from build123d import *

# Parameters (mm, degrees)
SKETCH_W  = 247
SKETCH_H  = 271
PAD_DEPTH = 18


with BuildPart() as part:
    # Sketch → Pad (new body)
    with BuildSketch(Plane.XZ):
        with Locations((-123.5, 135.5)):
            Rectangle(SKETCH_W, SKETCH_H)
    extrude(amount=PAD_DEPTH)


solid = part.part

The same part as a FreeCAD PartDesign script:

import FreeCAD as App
import Part
import Sketcher

V = App.Vector
Q = App.Units.Quantity

doc = App.newDocument("Part")
body = doc.addObject("PartDesign::Body", "Body")

# Sketch on XZ plane
sketch1 = doc.addObject("Sketcher::SketchObject", "Sketch")
body.addObject(sketch1)
sketch1.AttachmentSupport = (doc.XZ_Plane, [""])
sketch1.MapMode = "FlatFace"
sketch1.addGeometry(Part.LineSegment(V(-247, 271, 0), V(-247, 0, 0)), False)
sketch1.addGeometry(Part.LineSegment(V(-247, 0, 0), V(0, 0, 0)), False)
sketch1.addGeometry(Part.LineSegment(V(0, 0, 0), V(0, 271, 0)), False)
sketch1.addGeometry(Part.LineSegment(V(0, 271, 0), V(-247, 271, 0)), False)
sketch1.addConstraint(Sketcher.Constraint("Coincident", 0, 2, 1, 1))
sketch1.addConstraint(Sketcher.Constraint("Coincident", 1, 2, 2, 1))
sketch1.addConstraint(Sketcher.Constraint("Coincident", 2, 2, 3, 1))
sketch1.addConstraint(Sketcher.Constraint("Coincident", 3, 2, 0, 1))
sketch1.addConstraint(Sketcher.Constraint("Vertical", 0))
sketch1.addConstraint(Sketcher.Constraint("Horizontal", 1))
sketch1.addConstraint(Sketcher.Constraint("Vertical", 2))
sketch1.addConstraint(Sketcher.Constraint("Horizontal", 3))
sketch1.addConstraint(Sketcher.Constraint("Coincident", 1, 2, -1, 1))
sketch1.addConstraint(Sketcher.Constraint("DistanceX", 1, 1, 1, 2, Q("247 mm")))
sketch1.addConstraint(Sketcher.Constraint("DistanceY", 0, 2, 0, 1, Q("271 mm")))
pad1 = doc.addObject("PartDesign::Pad", "Pad")
body.addObject(pad1)
pad1.Profile = sketch1
pad1.Length = 18

doc.recompute()
